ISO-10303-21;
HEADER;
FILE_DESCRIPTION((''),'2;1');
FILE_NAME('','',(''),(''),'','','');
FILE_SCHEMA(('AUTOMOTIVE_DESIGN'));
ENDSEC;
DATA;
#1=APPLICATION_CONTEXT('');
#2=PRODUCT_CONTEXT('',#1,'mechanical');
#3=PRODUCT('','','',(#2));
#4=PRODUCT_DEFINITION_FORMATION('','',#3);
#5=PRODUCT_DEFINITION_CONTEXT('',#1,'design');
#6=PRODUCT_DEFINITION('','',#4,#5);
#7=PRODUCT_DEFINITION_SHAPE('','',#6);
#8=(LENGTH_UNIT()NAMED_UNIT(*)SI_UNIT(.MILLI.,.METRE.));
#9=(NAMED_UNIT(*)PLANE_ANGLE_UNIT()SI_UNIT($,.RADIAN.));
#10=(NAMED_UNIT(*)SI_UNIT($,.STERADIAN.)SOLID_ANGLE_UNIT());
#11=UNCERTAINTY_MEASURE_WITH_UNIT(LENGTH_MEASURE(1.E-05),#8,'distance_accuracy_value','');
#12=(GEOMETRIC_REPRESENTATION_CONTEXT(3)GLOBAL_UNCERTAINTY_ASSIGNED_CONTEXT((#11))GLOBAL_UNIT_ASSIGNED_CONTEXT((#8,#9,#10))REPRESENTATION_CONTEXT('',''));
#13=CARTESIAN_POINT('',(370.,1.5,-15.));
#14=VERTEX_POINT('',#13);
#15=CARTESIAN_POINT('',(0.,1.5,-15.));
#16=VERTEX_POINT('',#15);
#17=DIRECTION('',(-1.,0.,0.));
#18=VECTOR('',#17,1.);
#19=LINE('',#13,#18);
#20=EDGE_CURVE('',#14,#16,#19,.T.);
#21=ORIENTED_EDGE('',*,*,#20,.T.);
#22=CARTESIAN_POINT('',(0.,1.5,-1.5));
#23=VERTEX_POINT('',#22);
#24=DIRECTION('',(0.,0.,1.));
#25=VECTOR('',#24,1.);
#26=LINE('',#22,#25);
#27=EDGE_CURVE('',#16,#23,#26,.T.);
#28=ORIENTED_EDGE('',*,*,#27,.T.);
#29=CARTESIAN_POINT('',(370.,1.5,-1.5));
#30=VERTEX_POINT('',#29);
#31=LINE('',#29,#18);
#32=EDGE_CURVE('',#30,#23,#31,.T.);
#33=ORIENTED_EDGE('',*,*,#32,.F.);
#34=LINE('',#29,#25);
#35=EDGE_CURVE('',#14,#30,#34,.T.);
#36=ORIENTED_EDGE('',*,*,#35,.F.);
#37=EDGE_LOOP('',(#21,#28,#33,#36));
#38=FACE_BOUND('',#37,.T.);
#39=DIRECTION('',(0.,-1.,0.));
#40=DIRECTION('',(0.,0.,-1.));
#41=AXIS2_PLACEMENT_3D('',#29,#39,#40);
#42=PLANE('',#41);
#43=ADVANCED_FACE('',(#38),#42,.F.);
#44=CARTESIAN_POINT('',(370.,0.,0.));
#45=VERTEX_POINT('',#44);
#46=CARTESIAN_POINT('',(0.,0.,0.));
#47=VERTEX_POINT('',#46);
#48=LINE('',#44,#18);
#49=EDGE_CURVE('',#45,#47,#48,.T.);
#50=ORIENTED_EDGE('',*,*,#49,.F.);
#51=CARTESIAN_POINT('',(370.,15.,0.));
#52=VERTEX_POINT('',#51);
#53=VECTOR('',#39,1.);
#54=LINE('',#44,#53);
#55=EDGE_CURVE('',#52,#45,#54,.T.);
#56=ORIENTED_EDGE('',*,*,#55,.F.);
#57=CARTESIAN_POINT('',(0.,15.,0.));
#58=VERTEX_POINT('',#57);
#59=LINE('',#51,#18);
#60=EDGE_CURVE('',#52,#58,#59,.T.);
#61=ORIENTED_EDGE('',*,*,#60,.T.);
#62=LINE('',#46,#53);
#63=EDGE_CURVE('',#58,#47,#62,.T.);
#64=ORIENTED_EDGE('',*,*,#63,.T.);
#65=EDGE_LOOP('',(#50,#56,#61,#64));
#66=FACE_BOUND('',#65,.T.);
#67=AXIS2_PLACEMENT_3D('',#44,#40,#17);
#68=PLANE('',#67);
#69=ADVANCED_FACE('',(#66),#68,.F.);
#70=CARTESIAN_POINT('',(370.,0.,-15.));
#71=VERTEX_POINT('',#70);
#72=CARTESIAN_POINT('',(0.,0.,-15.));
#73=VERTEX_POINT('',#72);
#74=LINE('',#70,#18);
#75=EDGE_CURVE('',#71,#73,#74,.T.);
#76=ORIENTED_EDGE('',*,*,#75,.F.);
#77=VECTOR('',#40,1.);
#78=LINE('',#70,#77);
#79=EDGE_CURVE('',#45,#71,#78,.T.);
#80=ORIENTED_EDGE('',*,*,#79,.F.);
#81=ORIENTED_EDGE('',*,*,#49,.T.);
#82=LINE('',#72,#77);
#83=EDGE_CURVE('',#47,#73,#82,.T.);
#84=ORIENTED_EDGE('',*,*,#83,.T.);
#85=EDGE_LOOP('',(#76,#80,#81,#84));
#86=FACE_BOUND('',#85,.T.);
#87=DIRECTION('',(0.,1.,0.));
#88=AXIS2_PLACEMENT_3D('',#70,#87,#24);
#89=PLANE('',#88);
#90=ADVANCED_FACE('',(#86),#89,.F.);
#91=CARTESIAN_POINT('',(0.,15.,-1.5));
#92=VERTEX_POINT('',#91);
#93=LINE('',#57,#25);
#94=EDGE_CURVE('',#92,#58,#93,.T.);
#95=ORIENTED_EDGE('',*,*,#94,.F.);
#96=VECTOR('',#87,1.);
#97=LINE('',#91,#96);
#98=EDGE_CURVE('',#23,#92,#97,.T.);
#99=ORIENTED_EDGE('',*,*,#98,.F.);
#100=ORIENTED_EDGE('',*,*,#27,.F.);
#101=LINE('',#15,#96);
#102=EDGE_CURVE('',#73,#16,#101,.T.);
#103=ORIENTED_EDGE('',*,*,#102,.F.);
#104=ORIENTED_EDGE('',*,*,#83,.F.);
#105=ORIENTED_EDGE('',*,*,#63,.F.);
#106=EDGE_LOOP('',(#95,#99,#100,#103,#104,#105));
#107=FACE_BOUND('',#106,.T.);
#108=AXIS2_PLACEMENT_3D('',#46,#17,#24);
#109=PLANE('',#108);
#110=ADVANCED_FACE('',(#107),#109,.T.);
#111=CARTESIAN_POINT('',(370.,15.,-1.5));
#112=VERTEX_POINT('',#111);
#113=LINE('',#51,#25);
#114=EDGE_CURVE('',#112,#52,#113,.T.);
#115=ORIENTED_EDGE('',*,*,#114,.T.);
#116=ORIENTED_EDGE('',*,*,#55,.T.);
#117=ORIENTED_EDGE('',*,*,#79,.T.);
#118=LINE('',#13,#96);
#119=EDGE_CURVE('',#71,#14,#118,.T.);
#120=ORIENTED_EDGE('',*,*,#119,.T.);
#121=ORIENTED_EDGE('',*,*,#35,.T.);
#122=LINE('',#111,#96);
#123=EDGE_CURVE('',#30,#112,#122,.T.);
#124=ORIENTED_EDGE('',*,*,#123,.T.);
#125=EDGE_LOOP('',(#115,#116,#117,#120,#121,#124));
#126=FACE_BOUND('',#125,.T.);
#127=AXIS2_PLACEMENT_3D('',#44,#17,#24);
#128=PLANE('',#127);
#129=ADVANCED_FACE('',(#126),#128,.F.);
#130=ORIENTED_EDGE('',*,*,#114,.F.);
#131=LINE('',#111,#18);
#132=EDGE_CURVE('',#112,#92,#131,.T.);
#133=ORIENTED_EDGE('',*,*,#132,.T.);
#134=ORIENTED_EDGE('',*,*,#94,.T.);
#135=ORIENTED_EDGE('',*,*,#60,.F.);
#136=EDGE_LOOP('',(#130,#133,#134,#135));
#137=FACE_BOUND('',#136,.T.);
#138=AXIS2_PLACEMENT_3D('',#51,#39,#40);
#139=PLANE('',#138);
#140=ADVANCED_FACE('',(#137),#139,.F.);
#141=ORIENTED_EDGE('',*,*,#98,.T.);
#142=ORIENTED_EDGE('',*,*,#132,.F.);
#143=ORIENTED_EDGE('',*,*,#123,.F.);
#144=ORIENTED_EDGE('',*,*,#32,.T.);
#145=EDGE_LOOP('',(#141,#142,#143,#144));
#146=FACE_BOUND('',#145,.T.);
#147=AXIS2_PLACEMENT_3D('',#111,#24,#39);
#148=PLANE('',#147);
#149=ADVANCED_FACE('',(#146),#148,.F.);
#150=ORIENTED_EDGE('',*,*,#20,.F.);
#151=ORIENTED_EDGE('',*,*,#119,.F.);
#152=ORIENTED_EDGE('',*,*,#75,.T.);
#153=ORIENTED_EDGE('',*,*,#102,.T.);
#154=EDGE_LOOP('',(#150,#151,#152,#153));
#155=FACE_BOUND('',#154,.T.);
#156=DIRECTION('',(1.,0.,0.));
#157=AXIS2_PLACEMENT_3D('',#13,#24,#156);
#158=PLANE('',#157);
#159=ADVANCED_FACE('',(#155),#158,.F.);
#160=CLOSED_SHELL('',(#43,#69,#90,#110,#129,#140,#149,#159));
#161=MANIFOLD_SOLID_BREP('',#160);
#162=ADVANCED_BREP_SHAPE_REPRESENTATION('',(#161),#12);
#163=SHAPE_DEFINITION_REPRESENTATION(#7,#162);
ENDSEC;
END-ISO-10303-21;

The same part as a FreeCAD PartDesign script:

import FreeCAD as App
import Part
import Sketcher
Q = App.Units.Quantity

doc = App.newDocument("Part")
body = doc.addObject("PartDesign::Body", "Body")

# Sketch on YZ plane
sketch1 = body.newObject("Sketcher::SketchObject", "Sketch")
sketch1.AttachmentSupport = (doc.getObject("YZ_Plane"), [""])
sketch1.MapMode = "FlatFace"
sketch1.addGeometry(Part.LineSegment(App.Vector(15, 0, 0), App.Vector(0, 0, 0)), False)
sketch1.addGeometry(Part.LineSegment(App.Vector(0, 0, 0), App.Vector(0, -15, 0)), False)
sketch1.addGeometry(Part.LineSegment(App.Vector(0, -15, 0), App.Vector(1.5, -15, 0)), False)
sketch1.addGeometry(Part.LineSegment(App.Vector(1.5, -15, 0), App.Vector(1.5, -1.5, 0)), False)
sketch1.addGeometry(Part.LineSegment(App.Vector(1.5, -1.5, 0), App.Vector(15, -1.5, 0)), False)
sketch1.addGeometry(Part.LineSegment(App.Vector(15, -1.5, 0), App.Vector(15, 0, 0)), False)
sketch1.addConstraint(Sketcher.Constraint("Coincident", 0, 2, 1, 1))
sketch1.addConstraint(Sketcher.Constraint("Coincident", 1, 2, 2, 1))
sketch1.addConstraint(Sketcher.Constraint("Coincident", 2, 2, 3, 1))
sketch1.addConstraint(Sketcher.Constraint("Coincident", 3, 2, 4, 1))
sketch1.addConstraint(Sketcher.Constraint("Coincident", 4, 2, 5, 1))
sketch1.addConstraint(Sketcher.Constraint("Coincident", 5, 2, 0, 1))
sketch1.addConstraint(Sketcher.Constraint("Horizontal", 0))
sketch1.addConstraint(Sketcher.Constraint("Vertical", 1))
sketch1.addConstraint(Sketcher.Constraint("Horizontal", 2))
sketch1.addConstraint(Sketcher.Constraint("Vertical", 3))
sketch1.addConstraint(Sketcher.Constraint("Horizontal", 4))
sketch1.addConstraint(Sketcher.Constraint("Vertical", 5))
sketch1.addConstraint(Sketcher.Constraint("Coincident", 0, 2, -1, 1))
sketch1.addConstraint(Sketcher.Constraint("Equal", 0, 1))
sketch1.addConstraint(Sketcher.Constraint("Equal", 4, 3))
sketch1.addConstraint(Sketcher.Constraint("DistanceX", 0, 2, 0, 1, Q("15 mm")))
sketch1.addConstraint(Sketcher.Constraint("DistanceX", 2, 1, 2, 2, Q("1.5 mm")))
pad1 = body.newObject("PartDesign::Pad", "Pad")
pad1.Profile = sketch1
pad1.Length = 370

doc.recompute()
